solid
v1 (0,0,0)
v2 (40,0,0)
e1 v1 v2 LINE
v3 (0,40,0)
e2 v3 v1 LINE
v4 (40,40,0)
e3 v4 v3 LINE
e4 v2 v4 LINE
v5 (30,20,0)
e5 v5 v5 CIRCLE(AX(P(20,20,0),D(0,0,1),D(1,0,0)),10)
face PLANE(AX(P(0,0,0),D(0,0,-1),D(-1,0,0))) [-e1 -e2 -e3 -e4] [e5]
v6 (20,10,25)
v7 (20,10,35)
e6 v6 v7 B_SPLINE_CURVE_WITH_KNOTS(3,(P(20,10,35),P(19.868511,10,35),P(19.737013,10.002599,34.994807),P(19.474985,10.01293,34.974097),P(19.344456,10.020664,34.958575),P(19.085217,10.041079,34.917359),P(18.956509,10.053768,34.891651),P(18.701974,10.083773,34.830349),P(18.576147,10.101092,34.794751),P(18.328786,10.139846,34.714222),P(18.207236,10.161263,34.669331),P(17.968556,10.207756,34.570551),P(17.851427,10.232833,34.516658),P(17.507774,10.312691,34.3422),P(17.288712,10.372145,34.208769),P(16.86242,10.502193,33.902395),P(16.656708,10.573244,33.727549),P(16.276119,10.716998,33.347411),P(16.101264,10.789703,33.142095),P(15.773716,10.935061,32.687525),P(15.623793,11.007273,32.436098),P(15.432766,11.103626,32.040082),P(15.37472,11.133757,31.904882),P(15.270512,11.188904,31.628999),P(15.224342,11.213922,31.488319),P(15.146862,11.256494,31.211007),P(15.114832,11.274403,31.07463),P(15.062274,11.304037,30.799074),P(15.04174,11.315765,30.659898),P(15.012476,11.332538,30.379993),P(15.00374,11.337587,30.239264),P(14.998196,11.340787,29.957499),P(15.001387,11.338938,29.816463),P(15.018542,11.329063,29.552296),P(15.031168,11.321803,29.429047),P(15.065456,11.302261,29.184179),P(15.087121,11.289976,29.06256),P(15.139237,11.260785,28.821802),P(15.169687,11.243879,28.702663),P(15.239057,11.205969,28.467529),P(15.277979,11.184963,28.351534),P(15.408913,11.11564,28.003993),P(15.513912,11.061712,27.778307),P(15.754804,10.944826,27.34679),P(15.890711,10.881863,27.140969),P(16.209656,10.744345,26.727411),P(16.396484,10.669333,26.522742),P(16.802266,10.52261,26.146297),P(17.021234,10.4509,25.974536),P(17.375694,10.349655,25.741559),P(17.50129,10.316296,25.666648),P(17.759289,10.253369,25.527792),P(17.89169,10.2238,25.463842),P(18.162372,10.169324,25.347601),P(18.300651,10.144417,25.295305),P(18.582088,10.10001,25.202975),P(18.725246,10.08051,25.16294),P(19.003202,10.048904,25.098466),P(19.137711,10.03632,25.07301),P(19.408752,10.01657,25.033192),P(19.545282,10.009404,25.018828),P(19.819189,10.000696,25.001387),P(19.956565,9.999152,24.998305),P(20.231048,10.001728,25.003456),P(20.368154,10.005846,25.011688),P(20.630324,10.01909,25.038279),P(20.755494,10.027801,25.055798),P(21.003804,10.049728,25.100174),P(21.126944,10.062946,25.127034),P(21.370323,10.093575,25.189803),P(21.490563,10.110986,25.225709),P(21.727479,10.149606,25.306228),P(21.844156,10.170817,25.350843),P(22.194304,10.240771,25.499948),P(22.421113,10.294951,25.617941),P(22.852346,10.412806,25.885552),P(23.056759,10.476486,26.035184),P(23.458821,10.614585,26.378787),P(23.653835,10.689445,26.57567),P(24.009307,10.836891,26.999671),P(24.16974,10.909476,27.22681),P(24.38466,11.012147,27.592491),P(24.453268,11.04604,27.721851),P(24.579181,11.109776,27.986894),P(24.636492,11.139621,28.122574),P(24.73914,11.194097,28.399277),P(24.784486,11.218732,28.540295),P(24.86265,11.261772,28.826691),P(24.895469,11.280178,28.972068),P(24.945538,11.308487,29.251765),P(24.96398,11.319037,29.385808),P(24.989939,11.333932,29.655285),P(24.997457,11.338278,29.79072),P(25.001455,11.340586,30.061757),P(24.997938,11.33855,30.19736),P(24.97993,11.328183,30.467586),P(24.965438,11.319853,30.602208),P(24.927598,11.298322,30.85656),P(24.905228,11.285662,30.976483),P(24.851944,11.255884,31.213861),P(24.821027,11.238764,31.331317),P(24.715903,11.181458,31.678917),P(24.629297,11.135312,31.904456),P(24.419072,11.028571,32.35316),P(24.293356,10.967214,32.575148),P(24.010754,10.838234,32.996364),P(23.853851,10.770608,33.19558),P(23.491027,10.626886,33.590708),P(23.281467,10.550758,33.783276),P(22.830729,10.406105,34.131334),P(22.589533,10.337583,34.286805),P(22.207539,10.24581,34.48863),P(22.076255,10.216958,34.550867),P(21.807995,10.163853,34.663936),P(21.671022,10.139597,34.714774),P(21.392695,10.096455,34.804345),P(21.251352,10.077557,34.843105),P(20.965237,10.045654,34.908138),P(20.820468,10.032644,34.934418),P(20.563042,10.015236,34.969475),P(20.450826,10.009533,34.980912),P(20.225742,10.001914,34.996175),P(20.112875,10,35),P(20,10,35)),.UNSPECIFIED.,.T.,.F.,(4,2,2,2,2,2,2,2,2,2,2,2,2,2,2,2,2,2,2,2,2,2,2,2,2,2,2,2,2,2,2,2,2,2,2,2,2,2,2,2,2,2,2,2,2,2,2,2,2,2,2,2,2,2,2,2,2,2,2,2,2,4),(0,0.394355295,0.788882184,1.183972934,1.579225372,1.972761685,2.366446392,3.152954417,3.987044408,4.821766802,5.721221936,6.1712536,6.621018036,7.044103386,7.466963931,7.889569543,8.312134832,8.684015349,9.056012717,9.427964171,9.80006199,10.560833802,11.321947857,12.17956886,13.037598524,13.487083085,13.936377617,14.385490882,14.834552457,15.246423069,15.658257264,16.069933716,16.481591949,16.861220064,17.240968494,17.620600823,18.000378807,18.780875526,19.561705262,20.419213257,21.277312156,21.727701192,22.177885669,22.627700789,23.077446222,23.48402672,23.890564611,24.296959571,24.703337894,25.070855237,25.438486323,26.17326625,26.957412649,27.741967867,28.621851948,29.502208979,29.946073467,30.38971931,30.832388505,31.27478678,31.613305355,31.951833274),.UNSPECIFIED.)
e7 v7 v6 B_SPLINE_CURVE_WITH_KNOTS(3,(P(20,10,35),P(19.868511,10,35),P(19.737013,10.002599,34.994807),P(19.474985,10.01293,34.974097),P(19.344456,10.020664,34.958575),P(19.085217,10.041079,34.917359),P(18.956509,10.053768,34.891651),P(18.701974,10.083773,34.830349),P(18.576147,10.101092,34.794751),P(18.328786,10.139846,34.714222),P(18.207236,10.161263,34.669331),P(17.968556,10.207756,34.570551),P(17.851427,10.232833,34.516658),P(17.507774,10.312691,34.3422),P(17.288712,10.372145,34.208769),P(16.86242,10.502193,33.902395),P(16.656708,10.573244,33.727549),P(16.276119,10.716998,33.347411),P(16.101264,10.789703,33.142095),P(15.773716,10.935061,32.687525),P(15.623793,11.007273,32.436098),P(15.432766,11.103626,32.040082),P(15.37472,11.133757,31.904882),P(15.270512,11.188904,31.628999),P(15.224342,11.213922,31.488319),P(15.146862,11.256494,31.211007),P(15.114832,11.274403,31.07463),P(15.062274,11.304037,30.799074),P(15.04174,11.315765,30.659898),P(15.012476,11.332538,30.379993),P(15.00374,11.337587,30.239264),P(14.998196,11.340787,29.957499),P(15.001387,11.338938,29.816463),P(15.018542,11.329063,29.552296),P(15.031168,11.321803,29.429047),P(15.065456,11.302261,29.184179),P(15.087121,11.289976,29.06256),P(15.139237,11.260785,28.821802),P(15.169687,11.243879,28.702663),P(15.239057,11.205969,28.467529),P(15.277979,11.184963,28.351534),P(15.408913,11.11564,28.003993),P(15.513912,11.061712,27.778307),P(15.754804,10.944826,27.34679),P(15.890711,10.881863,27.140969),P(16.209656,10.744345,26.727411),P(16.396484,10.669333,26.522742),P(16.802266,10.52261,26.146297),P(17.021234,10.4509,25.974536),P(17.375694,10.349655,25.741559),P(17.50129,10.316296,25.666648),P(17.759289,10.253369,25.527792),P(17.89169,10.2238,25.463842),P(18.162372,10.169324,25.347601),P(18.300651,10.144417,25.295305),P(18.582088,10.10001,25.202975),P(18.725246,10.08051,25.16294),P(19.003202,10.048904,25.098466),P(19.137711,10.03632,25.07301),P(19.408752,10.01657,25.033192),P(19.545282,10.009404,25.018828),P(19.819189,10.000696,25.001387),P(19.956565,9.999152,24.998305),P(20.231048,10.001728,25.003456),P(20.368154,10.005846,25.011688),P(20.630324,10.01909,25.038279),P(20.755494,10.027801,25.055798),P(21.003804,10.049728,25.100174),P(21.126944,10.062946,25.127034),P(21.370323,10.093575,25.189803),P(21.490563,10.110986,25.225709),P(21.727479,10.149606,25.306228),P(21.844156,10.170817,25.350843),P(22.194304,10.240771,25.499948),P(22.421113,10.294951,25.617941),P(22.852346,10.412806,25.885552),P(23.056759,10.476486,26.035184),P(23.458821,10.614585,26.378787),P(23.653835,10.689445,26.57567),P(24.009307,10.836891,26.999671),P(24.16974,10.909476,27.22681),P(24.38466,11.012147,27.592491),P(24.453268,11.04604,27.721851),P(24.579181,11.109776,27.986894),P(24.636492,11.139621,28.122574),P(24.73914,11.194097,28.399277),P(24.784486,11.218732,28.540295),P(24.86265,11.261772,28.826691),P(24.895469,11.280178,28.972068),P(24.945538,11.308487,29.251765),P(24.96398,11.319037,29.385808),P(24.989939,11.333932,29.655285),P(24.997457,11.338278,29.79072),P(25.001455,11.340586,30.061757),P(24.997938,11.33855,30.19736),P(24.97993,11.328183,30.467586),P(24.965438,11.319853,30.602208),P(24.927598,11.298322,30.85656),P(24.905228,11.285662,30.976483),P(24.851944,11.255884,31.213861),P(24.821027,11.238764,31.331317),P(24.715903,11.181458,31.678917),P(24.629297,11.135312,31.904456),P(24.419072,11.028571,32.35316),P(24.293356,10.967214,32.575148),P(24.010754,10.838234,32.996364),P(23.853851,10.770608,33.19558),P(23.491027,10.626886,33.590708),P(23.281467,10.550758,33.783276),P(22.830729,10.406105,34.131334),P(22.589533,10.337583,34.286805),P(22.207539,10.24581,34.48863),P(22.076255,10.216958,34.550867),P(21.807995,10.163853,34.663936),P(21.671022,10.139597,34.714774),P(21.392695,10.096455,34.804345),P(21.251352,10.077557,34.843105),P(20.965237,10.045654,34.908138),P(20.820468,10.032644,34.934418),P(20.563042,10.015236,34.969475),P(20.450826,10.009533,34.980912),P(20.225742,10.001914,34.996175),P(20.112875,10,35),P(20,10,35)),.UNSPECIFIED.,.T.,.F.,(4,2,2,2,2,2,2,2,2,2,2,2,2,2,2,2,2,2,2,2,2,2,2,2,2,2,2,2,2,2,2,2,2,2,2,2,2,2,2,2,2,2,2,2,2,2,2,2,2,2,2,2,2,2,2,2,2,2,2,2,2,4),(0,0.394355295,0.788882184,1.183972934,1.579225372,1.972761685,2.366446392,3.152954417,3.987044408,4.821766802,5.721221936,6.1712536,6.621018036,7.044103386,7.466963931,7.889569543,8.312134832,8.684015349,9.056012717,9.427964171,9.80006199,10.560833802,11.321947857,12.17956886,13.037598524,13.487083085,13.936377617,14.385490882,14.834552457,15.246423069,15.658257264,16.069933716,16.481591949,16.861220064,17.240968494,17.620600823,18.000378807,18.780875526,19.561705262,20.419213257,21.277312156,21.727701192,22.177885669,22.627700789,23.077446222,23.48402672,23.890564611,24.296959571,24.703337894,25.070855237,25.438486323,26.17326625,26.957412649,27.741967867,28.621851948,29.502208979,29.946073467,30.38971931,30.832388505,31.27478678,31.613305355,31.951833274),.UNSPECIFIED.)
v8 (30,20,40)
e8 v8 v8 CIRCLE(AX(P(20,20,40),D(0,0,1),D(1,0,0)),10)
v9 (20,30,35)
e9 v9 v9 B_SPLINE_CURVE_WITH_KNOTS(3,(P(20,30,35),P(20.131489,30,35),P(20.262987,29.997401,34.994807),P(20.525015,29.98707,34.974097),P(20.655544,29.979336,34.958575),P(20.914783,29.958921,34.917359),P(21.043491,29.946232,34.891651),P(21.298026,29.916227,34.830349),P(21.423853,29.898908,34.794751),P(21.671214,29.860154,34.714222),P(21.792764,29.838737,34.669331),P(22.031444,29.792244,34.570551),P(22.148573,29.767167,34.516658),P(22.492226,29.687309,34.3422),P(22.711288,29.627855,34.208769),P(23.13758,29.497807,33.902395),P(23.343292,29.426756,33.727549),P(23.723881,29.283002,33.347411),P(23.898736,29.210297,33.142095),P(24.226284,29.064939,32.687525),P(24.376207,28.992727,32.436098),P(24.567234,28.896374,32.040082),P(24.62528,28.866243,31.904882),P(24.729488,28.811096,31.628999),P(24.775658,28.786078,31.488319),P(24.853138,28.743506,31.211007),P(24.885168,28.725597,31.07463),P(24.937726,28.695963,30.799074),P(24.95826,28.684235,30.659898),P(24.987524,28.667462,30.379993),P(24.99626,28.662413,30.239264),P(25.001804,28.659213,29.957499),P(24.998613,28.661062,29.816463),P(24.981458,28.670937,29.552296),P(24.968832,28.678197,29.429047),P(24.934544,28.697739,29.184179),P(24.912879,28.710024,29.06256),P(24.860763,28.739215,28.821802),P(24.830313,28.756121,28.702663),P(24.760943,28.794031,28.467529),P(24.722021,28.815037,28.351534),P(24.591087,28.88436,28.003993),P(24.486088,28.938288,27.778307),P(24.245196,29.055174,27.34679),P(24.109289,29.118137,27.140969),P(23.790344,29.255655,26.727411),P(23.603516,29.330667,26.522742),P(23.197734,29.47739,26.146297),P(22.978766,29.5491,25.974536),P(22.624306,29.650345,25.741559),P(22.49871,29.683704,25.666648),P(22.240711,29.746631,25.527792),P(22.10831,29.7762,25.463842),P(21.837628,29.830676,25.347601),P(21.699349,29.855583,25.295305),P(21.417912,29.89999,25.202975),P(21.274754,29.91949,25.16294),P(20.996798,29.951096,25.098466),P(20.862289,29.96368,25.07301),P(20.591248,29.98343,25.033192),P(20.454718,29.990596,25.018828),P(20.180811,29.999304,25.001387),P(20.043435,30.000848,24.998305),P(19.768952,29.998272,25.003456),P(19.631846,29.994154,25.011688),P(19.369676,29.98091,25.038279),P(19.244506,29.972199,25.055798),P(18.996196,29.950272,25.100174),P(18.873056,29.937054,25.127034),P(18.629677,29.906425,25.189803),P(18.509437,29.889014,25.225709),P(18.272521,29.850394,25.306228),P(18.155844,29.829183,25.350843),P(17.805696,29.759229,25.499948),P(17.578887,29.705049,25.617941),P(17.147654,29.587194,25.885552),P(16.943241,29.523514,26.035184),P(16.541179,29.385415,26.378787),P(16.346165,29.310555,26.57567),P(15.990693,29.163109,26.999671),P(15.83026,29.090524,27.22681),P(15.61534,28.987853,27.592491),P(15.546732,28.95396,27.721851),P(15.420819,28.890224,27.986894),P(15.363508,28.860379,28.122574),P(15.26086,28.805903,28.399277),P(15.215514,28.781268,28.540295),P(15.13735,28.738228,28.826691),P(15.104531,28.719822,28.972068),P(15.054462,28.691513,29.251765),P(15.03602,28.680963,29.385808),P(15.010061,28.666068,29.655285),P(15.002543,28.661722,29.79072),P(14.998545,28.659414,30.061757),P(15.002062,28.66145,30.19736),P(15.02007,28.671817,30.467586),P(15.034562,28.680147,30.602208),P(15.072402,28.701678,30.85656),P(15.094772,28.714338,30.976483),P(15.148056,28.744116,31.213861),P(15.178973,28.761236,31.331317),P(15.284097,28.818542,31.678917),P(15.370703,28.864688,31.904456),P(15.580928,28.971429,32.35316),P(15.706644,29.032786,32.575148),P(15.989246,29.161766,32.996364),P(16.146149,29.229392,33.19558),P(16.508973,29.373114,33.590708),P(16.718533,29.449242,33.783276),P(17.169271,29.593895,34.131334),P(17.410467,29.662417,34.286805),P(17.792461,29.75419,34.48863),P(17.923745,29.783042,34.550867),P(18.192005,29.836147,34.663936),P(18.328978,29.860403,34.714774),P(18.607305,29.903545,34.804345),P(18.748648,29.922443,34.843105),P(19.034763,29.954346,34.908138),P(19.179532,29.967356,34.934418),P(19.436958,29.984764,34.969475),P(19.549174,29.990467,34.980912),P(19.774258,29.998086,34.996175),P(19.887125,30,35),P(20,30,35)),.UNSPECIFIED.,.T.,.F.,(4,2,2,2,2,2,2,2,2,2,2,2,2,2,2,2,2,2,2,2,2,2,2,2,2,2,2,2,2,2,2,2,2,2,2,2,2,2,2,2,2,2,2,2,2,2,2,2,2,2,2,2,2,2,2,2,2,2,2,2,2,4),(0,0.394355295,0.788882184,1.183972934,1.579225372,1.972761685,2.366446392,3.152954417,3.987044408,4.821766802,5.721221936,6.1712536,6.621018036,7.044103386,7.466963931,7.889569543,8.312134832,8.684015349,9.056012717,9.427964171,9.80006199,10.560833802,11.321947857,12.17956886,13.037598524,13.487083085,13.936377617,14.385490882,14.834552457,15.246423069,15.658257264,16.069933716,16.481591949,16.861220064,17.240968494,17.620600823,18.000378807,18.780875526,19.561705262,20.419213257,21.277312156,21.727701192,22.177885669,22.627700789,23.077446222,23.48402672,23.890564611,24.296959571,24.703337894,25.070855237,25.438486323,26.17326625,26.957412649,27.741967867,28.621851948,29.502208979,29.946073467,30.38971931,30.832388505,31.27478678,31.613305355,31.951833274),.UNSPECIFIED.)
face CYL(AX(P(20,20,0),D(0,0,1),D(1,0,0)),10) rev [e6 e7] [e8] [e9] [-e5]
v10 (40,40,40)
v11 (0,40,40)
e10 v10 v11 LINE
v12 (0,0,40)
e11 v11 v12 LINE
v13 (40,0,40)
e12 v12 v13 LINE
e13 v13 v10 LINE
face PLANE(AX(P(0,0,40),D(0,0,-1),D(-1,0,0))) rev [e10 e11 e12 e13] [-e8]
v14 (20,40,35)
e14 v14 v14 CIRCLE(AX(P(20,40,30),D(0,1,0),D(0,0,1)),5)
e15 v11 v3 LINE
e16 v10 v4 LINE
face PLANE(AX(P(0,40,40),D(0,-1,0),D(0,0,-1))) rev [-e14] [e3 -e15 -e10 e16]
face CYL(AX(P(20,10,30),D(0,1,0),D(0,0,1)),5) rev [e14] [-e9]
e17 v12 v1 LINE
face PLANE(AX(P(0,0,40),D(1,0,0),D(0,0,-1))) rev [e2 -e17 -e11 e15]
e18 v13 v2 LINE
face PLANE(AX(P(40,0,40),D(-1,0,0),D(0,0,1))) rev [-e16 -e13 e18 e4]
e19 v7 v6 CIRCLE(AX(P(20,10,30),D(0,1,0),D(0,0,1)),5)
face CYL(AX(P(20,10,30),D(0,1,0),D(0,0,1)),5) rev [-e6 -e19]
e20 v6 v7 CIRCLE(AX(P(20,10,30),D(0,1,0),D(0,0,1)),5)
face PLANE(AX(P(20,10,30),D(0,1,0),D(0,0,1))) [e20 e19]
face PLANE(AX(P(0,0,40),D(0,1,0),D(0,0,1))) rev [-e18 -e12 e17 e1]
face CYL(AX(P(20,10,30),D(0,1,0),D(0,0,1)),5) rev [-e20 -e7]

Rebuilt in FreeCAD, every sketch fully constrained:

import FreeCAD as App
import Part
import Sketcher
from FreeCAD import Vector
Q = App.Units.Quantity


def add_polygon(sketch, points):
    """Adds a closed chain of lines whose ends are joined by coincident constraints."""
    first, n = sketch.GeometryCount, len(points)
    for a, b in zip(points, points[1:] + points[:1]):
        sketch.addGeometry(Part.LineSegment(App.Vector(*a, 0), App.Vector(*b, 0)), False)
    for i in range(n):
        sketch.addConstraint(Sketcher.Constraint("Coincident", first + i, 2, first + (i + 1) % n, 1))

doc = App.newDocument("Part")
body = doc.addObject("PartDesign::Body", "Body")

# Sketch on XY plane
sketch1 = body.newObject("Sketcher::SketchObject", "Sketch")
sketch1.AttachmentSupport = (doc.getObject("XY_Plane"), [""])
sketch1.MapMode = "FlatFace"
add_polygon(sketch1, [(0, 40), (0, 0), (40, 0), (40, 40)])  # lines 0-3
sketch1.addConstraint(Sketcher.Constraint("Vertical", 0))
sketch1.addConstraint(Sketcher.Constraint("Horizontal", 1))
sketch1.addConstraint(Sketcher.Constraint("Vertical", 2))
sketch1.addConstraint(Sketcher.Constraint("Horizontal", 3))
sketch1.addConstraint(Sketcher.Constraint("Coincident", 0, 2, -1, 1))
sketch1.addConstraint(Sketcher.Constraint("Equal", 3, 0))
sketch1.addConstraint(Sketcher.Constraint("DistanceX", 1, 1, 1, 2, Q("40 mm")))
pad1 = body.newObject("PartDesign::Pad", "Pad")
pad1.Profile = sketch1
pad1.Length = 40

# Sketch on XY plane
sketch2 = body.newObject("Sketcher::SketchObject", "Sketch001")
sketch2.AttachmentSupport = (doc.getObject("XY_Plane"), [""])
sketch2.MapMode = "FlatFace"
sketch2.AttachmentOffset = App.Placement(Vector(0, 0, 40), App.Rotation())
sketch2.addGeometry(Part.Circle(Vector(20, 20, 0), Vector(0, 0, 1), 10), False)
sketch2.addConstraint(Sketcher.Constraint("Diameter", 0, Q("20 mm")))
sketch2.addConstraint(Sketcher.Constraint("DistanceX", -1, 1, 0, 3, Q("20 mm")))
sketch2.addConstraint(Sketcher.Constraint("DistanceY", -1, 1, 0, 3, Q("20 mm")))
pocket1 = body.newObject("PartDesign::Pocket", "Pocket")
pocket1.Profile = sketch2
pocket1.Length = 40

# Sketch on XZ plane
sketch3 = body.newObject("Sketcher::SketchObject", "Sketch002")
sketch3.AttachmentSupport = (doc.getObject("XZ_Plane"), [""])
sketch3.MapMode = "FlatFace"
sketch3.AttachmentOffset = App.Placement(Vector(0, 0, -40), App.Rotation())
sketch3.addGeometry(Part.Circle(Vector(20, 30, 0), Vector(0, 0, 1), 5), False)
sketch3.addConstraint(Sketcher.Constraint("Diameter", 0, Q("10 mm")))
sketch3.addConstraint(Sketcher.Constraint("DistanceX", -1, 1, 0, 3, Q("20 mm")))
sketch3.addConstraint(Sketcher.Constraint("DistanceY", -1, 1, 0, 3, Q("30 mm")))
pocket2 = body.newObject("PartDesign::Pocket", "Pocket001")
pocket2.Profile = sketch3
pocket2.Length = 30
pocket2.Reversed = True

doc.recompute()
